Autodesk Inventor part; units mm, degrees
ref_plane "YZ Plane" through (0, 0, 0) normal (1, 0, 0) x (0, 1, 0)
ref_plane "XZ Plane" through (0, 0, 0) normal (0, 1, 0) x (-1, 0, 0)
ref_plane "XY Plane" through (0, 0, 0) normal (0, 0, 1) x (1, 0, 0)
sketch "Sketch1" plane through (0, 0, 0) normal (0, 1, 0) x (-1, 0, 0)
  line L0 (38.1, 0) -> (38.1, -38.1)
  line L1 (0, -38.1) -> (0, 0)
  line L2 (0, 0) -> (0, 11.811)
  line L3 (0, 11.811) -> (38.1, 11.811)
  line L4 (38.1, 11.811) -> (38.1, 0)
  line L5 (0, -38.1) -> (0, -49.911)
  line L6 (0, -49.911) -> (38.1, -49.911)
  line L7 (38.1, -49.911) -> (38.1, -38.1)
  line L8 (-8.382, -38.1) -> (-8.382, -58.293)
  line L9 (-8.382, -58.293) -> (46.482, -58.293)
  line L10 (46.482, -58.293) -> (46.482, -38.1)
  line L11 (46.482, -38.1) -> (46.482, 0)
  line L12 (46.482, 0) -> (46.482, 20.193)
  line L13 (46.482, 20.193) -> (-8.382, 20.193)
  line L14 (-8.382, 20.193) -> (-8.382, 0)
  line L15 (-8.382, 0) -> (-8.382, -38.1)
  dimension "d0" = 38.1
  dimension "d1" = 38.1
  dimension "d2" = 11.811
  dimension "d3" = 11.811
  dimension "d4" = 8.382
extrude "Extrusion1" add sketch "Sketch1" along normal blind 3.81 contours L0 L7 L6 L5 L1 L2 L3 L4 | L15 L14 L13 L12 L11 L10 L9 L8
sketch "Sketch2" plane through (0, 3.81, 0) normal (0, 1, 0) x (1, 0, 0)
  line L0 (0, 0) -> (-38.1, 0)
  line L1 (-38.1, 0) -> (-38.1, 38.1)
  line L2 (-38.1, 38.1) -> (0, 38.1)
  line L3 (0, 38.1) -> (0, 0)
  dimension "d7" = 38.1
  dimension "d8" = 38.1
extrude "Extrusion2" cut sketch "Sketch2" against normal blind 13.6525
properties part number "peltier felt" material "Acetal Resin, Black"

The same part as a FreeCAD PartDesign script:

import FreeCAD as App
import Part
import Sketcher

V = App.Vector
Q = App.Units.Quantity


def add_polygon(sketch, points):
    """Adds a closed chain of lines whose ends are joined by coincident constraints."""
    first, n = sketch.GeometryCount, len(points)
    for a, b in zip(points, points[1:] + points[:1]):
        sketch.addGeometry(Part.LineSegment(App.Vector(*a, 0), App.Vector(*b, 0)), False)
    for i in range(n):
        sketch.addConstraint(Sketcher.Constraint("Coincident", first + i, 2, first + (i + 1) % n, 1))

doc = App.newDocument("Part")
body = doc.addObject("PartDesign::Body", "Body")

sketch1 = body.newObject("Sketcher::SketchObject", "Sketch")
sketch1.AttachmentSupport = (doc.getObject("XZ_Plane"), [""])
sketch1.MapMode = "FlatFace"
add_polygon(sketch1, [(8, -58), (-46, -58), (-46, 20), (8, 20)])
sketch1.addConstraint([
    Sketcher.Constraint("Horizontal", 0),
    Sketcher.Constraint("Vertical", 1),
    Sketcher.Constraint("Horizontal", 2),
    Sketcher.Constraint("Vertical", 3),
    Sketcher.Constraint("DistanceX", -1, 1, 2, 2, Q("0.33 in")),
    Sketcher.Constraint("DistanceX", 0, 2, 0, 1, Q("2.16 in")),
    Sketcher.Constraint("DistanceY", 1, 1, 1, 2, Q("3.09 in")),
    Sketcher.Constraint("DistanceY", 0, 2, -1, 1, Q("2.295 in")),
])
pad1 = body.newObject("PartDesign::Pad", "Pad")
pad1.Profile = sketch1
pad1.Length = Q("0.15 in")
pad1.Reversed = True

sketch2 = body.newObject("Sketcher::SketchObject", "Sketch001")
sketch2.AttachmentSupport = (doc.getObject("XZ_Plane"), [""])
sketch2.MapMode = "FlatFace"
sketch2.AttachmentOffset = App.Placement(V(0, 0, -0.15 * 25.4), App.Rotation())
add_polygon(sketch2, [(-38, 0), (0, 0), (0, -38), (-38, -38)])
sketch2.addConstraint([
    Sketcher.Constraint("Horizontal", 0),
    Sketcher.Constraint("Vertical", 1),
    Sketcher.Constraint("Horizontal", 2),
    Sketcher.Constraint("Vertical", 3),
    Sketcher.Constraint("Coincident", 0, 2, -1, 1),
    Sketcher.Constraint("Equal", 2, 1),
    Sketcher.Constraint("DistanceX", 0, 1, 0, 2, Q("1.5 in")),
])
pocket1 = body.newObject("PartDesign::Pocket", "Pocket")
pocket1.Profile = sketch2
pocket1.Length = Q("0.5375 in")
pocket1.Reversed = True

doc.recompute()
